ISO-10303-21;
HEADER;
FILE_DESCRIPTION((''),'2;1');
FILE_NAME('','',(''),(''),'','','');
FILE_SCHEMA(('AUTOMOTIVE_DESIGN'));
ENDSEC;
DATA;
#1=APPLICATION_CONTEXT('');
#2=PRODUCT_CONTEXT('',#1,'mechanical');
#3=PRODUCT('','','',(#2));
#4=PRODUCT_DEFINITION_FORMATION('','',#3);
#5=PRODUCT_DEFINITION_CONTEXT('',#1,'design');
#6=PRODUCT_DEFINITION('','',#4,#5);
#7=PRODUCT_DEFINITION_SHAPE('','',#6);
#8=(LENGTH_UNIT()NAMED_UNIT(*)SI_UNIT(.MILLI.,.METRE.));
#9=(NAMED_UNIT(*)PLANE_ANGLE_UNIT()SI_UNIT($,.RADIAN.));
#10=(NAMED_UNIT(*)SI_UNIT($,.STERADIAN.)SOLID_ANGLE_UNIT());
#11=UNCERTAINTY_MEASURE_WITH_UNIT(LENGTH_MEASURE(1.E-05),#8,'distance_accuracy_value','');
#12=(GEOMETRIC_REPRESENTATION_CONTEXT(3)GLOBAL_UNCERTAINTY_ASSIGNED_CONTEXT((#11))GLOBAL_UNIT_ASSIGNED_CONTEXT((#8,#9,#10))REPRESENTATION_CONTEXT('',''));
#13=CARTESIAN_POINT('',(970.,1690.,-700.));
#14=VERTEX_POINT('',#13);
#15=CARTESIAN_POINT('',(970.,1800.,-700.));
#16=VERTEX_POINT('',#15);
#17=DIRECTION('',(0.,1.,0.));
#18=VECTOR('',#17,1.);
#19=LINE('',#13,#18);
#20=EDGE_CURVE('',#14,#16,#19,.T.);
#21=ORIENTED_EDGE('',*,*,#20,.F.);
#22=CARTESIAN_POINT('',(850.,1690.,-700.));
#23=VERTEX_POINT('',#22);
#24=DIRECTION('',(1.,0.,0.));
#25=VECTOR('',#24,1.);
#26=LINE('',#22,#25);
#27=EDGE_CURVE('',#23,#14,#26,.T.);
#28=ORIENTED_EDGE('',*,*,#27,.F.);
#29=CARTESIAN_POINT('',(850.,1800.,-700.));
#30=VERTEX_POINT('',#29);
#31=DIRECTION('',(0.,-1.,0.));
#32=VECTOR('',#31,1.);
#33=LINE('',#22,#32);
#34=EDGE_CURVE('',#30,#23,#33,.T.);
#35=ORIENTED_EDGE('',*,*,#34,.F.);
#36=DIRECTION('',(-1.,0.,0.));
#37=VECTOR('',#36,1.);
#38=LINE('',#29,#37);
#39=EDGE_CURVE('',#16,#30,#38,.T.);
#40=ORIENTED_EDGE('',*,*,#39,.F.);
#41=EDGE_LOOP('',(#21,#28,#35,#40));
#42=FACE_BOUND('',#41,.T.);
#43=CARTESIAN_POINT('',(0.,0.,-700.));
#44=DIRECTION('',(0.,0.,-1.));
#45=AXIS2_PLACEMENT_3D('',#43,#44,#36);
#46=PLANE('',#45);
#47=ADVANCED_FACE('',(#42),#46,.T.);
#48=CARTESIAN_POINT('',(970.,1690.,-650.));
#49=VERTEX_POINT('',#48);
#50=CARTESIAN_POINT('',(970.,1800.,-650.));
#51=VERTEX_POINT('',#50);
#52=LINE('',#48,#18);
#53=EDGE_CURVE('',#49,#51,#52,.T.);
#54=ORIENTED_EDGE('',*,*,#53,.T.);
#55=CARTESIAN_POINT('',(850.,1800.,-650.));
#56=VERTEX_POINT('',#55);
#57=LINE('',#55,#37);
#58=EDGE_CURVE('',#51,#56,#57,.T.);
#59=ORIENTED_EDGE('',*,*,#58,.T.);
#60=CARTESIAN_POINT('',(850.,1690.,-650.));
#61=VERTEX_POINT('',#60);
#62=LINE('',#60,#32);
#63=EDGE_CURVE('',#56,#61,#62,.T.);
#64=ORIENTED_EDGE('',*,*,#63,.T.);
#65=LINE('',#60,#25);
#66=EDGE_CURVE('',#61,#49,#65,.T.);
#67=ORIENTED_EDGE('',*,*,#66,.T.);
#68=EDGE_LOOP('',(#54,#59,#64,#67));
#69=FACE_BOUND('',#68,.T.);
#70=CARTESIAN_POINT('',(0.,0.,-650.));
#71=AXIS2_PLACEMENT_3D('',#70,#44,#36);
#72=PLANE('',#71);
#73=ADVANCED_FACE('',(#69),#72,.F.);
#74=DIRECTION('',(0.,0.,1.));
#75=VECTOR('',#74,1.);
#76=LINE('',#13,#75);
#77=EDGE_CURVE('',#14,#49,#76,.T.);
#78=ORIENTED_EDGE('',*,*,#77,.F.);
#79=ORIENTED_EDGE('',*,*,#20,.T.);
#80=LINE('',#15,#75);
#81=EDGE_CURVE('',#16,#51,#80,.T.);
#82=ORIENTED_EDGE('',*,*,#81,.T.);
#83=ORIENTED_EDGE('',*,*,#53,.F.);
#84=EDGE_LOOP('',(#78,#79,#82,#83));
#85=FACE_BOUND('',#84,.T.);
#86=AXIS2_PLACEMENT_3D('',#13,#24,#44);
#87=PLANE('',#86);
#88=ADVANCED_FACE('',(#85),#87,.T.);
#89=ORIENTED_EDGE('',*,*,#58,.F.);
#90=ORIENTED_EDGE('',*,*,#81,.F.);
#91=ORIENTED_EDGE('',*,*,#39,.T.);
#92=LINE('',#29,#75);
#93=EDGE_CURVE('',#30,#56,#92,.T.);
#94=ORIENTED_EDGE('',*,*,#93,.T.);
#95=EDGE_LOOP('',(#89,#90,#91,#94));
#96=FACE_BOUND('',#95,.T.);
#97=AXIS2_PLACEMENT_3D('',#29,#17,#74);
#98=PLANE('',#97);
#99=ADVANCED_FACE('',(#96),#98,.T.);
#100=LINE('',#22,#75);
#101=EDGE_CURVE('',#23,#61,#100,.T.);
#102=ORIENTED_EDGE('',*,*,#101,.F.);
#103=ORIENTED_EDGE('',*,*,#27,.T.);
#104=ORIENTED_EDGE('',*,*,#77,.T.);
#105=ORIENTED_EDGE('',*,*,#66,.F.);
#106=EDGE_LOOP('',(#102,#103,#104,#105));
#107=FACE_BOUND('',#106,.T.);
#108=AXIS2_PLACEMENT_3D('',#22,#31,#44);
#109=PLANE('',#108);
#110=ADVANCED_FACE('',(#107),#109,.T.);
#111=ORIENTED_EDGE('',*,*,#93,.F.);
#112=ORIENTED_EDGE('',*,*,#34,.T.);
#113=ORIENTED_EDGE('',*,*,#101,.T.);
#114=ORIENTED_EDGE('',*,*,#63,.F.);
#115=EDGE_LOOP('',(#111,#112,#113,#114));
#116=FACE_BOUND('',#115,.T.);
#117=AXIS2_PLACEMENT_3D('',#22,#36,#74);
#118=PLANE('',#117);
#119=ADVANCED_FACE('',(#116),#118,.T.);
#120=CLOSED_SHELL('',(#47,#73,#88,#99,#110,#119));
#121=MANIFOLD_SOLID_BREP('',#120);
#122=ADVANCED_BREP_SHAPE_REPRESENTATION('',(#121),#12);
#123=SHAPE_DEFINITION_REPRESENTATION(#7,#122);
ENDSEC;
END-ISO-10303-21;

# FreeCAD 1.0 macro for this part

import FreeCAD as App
import Part
import Sketcher

V = App.Vector
Q = App.Units.Quantity

doc = App.newDocument("Part")
params = doc.addObject("Spreadsheet::Sheet", "Params")
for row, (alias, value) in enumerate([
    ("sketch1_width", "120 mm"),
    ("sketch1_height", "110 mm"),
    ("pad1_length", "50 mm"),
], start=1):
    params.set(f"A{row}", alias)
    params.set(f"B{row}", "=" + value)
    params.setAlias(f"B{row}", alias)

body = doc.addObject("PartDesign::Body", "Body")

# Sketch on XY plane
sketch1 = doc.addObject("Sketcher::SketchObject", "Sketch")
body.addObject(sketch1)
sketch1.AttachmentSupport = (doc.XY_Plane, [""])
sketch1.MapMode = "FlatFace"
sketch1.AttachmentOffset = App.Placement(V(0, 0, -650), App.Rotation())
sketch1.addGeometry([
    Part.LineSegment(V(850, 1800, 0), V(850, 1690, 0)),
    Part.LineSegment(V(850, 1690, 0), V(970, 1690, 0)),
    Part.LineSegment(V(970, 1690, 0), V(970, 1800, 0)),
    Part.LineSegment(V(970, 1800, 0), V(850, 1800, 0)),
], False)
sketch1.addConstraint([
    Sketcher.Constraint("Coincident", 0, 2, 1, 1),
    Sketcher.Constraint("Coincident", 1, 2, 2, 1),
    Sketcher.Constraint("Coincident", 2, 2, 3, 1),
    Sketcher.Constraint("Coincident", 3, 2, 0, 1),
    Sketcher.Constraint("Vertical", 0),
    Sketcher.Constraint("Horizontal", 1),
    Sketcher.Constraint("Vertical", 2),
    Sketcher.Constraint("Horizontal", 3),
    Sketcher.Constraint("DistanceX", 1, 1, 1, 2, Q("120 mm")),
    Sketcher.Constraint("DistanceY", 0, 2, 0, 1, Q("110 mm")),
    Sketcher.Constraint("DistanceX", -1, 1, 0, 2, Q("850 mm")),
    Sketcher.Constraint("DistanceY", -1, 1, 0, 2, Q("1690 mm")),
])
sketch1.setExpression("Constraints[8]", "Params.sketch1_width")
sketch1.setExpression("Constraints[9]", "Params.sketch1_height")
pad1 = doc.addObject("PartDesign::Pad", "Pad")
body.addObject(pad1)
pad1.Profile = sketch1
pad1.setExpression("Length", "Params.pad1_length")
pad1.Reversed = True

doc.recompute()
